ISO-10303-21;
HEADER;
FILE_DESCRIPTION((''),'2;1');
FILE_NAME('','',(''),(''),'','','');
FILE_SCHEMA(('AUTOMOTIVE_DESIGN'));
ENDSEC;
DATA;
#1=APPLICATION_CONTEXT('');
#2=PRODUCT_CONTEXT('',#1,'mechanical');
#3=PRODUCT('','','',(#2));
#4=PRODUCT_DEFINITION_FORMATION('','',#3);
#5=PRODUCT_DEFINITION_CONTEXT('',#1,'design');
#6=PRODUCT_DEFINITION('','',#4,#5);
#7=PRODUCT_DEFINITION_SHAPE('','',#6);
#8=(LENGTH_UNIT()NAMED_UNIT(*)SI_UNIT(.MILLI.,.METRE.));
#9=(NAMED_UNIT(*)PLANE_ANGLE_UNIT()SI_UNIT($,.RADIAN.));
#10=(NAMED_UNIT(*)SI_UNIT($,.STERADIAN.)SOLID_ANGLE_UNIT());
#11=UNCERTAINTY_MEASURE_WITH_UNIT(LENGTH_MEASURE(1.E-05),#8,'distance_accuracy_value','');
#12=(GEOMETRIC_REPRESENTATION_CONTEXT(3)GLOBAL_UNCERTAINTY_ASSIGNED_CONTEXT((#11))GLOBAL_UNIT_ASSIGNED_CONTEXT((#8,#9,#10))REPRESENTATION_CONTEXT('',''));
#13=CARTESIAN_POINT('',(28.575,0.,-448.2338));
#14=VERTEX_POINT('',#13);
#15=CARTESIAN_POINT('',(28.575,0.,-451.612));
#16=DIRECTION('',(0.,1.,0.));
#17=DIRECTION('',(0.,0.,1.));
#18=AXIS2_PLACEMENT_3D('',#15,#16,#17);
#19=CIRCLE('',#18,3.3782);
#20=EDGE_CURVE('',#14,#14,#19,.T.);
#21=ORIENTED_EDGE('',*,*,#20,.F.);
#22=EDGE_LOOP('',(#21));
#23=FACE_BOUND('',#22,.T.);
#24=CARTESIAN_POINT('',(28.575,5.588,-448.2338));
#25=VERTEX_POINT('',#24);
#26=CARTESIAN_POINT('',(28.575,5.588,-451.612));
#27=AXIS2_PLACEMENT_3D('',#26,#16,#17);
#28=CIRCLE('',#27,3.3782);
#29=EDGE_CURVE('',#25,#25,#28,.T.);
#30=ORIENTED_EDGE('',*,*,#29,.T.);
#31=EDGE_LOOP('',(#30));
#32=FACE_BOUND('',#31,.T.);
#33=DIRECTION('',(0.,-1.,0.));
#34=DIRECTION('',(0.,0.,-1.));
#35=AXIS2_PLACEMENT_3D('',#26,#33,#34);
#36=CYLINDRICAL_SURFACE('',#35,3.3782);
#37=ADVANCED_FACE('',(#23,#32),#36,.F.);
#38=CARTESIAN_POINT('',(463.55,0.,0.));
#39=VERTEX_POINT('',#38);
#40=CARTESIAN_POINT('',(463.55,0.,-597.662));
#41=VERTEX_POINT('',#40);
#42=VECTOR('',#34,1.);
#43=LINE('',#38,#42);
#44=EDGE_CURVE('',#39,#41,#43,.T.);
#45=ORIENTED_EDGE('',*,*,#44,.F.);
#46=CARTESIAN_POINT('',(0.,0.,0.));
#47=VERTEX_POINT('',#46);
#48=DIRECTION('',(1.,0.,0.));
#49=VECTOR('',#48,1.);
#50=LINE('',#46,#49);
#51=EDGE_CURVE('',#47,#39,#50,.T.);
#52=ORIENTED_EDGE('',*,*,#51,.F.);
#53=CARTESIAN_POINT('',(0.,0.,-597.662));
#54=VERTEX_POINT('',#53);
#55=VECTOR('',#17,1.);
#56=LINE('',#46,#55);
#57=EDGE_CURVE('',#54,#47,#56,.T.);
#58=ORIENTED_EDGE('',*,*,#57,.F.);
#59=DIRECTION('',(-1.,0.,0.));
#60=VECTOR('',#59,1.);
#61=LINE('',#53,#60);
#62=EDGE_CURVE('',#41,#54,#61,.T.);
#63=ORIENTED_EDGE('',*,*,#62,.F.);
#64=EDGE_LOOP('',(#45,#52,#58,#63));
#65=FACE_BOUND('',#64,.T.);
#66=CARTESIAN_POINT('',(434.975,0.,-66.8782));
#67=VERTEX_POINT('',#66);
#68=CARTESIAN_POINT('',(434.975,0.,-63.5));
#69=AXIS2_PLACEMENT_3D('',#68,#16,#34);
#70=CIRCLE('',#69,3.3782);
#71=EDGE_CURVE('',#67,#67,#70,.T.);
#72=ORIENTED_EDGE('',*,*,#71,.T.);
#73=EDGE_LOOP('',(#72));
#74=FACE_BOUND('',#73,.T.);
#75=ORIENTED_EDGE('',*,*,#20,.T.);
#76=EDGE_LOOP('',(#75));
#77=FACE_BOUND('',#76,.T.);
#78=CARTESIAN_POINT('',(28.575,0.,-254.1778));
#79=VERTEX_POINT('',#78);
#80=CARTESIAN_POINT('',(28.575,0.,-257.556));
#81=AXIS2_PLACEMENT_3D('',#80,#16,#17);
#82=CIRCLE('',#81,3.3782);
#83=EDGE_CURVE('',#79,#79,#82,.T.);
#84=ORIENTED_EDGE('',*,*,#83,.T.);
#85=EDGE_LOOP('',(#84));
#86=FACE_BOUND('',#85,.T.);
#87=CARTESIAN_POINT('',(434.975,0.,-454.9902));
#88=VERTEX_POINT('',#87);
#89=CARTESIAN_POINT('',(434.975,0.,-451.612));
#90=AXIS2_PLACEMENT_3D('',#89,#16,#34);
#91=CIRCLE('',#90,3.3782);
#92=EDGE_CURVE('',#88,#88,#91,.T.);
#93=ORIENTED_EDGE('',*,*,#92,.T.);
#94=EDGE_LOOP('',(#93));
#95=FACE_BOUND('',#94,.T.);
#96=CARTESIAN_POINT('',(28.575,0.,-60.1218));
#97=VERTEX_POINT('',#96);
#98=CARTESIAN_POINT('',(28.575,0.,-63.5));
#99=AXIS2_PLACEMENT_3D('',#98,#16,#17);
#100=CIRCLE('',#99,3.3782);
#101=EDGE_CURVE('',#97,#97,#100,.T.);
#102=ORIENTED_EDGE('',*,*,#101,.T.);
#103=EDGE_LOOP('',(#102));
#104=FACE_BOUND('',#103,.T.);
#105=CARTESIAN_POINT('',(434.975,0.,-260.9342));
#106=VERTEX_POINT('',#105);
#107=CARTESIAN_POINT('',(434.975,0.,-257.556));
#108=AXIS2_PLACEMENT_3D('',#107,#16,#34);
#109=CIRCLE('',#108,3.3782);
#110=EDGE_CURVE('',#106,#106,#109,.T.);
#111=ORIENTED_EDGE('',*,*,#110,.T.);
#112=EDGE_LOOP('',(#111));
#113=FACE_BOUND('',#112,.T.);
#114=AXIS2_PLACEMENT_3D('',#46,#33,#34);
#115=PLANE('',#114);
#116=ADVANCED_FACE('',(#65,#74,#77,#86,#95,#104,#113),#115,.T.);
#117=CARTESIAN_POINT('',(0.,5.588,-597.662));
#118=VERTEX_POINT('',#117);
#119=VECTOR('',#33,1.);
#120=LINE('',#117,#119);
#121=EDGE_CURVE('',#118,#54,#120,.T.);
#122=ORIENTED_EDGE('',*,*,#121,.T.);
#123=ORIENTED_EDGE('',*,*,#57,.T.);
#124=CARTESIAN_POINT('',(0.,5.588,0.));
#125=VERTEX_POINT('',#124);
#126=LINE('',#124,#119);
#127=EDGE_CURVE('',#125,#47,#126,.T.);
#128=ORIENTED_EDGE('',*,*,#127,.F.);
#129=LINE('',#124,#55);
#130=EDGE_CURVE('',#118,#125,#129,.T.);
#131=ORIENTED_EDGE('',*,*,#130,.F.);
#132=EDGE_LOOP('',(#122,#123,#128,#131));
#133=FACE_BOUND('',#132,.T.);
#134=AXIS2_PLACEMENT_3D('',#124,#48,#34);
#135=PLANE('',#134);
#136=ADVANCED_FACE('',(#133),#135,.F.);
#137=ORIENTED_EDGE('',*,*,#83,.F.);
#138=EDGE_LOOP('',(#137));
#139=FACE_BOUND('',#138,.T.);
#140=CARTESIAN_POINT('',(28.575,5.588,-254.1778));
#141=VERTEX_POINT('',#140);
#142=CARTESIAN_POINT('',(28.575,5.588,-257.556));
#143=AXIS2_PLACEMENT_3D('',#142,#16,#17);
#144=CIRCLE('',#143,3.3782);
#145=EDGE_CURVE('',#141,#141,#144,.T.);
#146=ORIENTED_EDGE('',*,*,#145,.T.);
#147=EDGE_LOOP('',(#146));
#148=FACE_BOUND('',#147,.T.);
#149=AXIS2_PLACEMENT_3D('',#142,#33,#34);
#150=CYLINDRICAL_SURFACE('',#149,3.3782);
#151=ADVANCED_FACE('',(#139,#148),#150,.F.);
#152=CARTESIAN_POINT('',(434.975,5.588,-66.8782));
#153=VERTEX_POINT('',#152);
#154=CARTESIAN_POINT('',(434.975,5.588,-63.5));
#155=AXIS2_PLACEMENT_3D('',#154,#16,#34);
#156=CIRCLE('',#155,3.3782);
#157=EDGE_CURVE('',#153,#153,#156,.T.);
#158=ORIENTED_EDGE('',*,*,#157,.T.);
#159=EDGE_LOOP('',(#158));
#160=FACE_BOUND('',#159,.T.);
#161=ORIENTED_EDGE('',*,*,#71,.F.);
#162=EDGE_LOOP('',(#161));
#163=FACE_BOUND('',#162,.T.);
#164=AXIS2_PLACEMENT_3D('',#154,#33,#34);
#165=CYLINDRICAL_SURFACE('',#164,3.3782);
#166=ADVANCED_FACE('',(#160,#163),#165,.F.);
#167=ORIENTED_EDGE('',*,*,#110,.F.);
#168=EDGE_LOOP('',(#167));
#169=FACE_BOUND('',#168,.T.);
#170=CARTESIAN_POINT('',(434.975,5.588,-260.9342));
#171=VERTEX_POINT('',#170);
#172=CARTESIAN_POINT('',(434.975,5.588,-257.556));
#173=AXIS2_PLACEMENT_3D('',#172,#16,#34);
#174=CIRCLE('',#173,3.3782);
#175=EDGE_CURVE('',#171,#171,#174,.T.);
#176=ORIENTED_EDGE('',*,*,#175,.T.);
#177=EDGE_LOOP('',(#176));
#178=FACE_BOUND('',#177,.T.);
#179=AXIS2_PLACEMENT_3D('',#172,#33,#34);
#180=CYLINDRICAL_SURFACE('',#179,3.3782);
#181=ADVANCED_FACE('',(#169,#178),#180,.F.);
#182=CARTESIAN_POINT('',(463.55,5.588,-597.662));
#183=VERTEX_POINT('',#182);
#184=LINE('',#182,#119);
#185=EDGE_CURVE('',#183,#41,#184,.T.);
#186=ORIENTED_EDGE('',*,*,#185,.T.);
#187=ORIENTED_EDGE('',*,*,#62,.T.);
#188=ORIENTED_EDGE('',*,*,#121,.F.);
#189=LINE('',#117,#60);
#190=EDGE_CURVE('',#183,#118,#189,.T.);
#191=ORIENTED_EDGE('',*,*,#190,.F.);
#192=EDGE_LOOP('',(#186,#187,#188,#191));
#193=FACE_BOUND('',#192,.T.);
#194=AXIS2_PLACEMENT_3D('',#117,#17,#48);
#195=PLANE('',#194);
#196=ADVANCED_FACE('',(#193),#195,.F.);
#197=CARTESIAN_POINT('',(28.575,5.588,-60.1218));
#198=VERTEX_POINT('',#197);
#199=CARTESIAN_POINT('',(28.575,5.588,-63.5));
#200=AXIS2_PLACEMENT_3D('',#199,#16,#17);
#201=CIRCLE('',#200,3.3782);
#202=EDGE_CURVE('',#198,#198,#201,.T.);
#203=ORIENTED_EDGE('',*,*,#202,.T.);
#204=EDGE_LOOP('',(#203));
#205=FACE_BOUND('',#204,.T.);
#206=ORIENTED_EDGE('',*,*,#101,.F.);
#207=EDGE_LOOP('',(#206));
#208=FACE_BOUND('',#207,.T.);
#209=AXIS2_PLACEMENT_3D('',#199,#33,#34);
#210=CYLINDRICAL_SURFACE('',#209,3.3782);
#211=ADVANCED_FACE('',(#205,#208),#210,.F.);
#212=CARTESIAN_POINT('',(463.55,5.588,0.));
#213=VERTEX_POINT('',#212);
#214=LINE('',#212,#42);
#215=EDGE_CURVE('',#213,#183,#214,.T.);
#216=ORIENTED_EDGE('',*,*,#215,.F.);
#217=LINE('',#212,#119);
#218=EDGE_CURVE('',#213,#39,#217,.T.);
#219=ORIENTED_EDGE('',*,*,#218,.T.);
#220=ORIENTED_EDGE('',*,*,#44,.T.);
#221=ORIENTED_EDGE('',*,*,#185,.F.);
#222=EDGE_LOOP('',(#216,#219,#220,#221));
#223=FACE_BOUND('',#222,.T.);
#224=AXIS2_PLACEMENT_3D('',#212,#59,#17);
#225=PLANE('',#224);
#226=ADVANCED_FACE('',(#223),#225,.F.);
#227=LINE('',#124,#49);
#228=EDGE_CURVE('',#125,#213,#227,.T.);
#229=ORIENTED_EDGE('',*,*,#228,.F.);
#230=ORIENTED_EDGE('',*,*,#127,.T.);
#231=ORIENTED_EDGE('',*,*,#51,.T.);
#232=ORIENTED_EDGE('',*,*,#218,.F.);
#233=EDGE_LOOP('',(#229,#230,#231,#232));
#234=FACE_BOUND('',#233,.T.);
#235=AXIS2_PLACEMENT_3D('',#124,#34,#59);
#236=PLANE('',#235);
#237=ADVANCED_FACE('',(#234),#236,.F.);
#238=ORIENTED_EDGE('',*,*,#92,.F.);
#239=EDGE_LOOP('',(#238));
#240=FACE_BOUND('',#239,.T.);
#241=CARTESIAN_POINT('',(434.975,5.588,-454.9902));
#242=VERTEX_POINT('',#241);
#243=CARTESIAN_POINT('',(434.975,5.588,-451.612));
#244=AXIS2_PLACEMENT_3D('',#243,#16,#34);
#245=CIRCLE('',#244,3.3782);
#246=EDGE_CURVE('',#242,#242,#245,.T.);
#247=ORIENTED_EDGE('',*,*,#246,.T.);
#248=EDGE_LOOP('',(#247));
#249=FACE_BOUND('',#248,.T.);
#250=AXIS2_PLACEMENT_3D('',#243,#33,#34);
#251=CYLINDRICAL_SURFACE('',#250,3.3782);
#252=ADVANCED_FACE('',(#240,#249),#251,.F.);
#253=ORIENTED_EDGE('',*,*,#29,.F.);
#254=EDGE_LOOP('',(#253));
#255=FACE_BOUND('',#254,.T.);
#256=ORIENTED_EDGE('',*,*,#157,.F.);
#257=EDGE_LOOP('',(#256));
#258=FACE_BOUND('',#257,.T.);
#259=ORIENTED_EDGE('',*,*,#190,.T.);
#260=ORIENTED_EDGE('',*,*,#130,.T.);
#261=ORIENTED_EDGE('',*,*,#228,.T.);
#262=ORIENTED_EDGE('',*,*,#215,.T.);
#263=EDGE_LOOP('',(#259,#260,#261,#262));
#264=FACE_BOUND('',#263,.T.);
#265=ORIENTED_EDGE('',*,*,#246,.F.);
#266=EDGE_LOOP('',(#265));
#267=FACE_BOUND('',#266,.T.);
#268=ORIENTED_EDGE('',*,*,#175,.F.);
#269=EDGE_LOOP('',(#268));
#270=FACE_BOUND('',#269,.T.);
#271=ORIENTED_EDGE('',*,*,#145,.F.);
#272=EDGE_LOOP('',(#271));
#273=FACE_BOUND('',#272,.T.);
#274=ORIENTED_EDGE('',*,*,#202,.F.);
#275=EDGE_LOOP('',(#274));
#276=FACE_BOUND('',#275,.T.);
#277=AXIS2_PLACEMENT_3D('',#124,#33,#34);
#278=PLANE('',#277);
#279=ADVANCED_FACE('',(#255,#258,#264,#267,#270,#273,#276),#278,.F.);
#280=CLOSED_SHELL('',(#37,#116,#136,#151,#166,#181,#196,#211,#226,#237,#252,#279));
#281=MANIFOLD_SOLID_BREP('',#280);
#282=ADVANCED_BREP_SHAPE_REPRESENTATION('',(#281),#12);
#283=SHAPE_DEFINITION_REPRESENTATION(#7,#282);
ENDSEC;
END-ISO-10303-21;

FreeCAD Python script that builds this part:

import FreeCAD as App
import Part
import Sketcher
from FreeCAD import Vector
Q = App.Units.Quantity


def add_polygon(sketch, points):
    """Adds a closed chain of lines whose ends are joined by coincident constraints."""
    first, n = sketch.GeometryCount, len(points)
    for a, b in zip(points, points[1:] + points[:1]):
        sketch.addGeometry(Part.LineSegment(App.Vector(*a, 0), App.Vector(*b, 0)), False)
    for i in range(n):
        sketch.addConstraint(Sketcher.Constraint("Coincident", first + i, 2, first + (i + 1) % n, 1))

doc = App.newDocument("Part")
body = doc.addObject("PartDesign::Body", "Body")

# Sketch on XZ plane
sketch1 = body.newObject("Sketcher::SketchObject", "Sketch")
sketch1.AttachmentSupport = (doc.getObject("XZ_Plane"), [""])
sketch1.MapMode = "FlatFace"
add_polygon(sketch1, [(0, -597.7), (0, 0), (463.6, 0), (463.6, -597.7)])  # lines 0-3
sketch1.addGeometry(Part.Circle(Vector(28.6, -63.5, 0), Vector(0, 0, 1), 3.4), False)  # 4
sketch1.addGeometry(Part.Circle(Vector(28.6, -257.6, 0), Vector(0, 0, 1), 3.4), False)  # 5
sketch1.addGeometry(Part.Circle(Vector(435, -63.5, 0), Vector(0, 0, 1), 3.4), False)  # 6
sketch1.addGeometry(Part.Circle(Vector(435, -257.6, 0), Vector(0, 0, 1), 3.4), False)  # 7
sketch1.addGeometry(Part.Circle(Vector(28.6, -451.6, 0), Vector(0, 0, 1), 3.4), False)  # 8
sketch1.addGeometry(Part.Circle(Vector(435, -451.6, 0), Vector(0, 0, 1), 3.4), False)  # 9
sketch1.addConstraint(Sketcher.Constraint("Vertical", 0))
sketch1.addConstraint(Sketcher.Constraint("Horizontal", 1))
sketch1.addConstraint(Sketcher.Constraint("Vertical", 2))
sketch1.addConstraint(Sketcher.Constraint("Horizontal", 3))
sketch1.addConstraint(Sketcher.Constraint("Coincident", 0, 2, -1, 1))
sketch1.addConstraint(Sketcher.Constraint("Equal", 4, 5))
sketch1.addConstraint(Sketcher.Constraint("Equal", 5, 6))
sketch1.addConstraint(Sketcher.Constraint("Equal", 6, 7))
sketch1.addConstraint(Sketcher.Constraint("Equal", 7, 8))
sketch1.addConstraint(Sketcher.Constraint("Equal", 8, 9))
sketch1.addConstraint(Sketcher.Constraint("Horizontal", 4, 3, 6, 3))
sketch1.addConstraint(Sketcher.Constraint("Horizontal", 5, 3, 7, 3))
sketch1.addConstraint(Sketcher.Constraint("Horizontal", 8, 3, 9, 3))
sketch1.addConstraint(Sketcher.Constraint("Vertical", 4, 3, 5, 3))
sketch1.addConstraint(Sketcher.Constraint("Vertical", 6, 3, 7, 3))
sketch1.addConstraint(Sketcher.Constraint("Vertical", 5, 3, 8, 3))
sketch1.addConstraint(Sketcher.Constraint("Vertical", 7, 3, 9, 3))
sketch1.addConstraint(Sketcher.Constraint("Diameter", 4, Q("0.266 in")))
sketch1.addConstraint(Sketcher.Constraint("DistanceX", 4, 3, 6, 3, Q("16 in")))
sketch1.addConstraint(Sketcher.Constraint("DistanceX", 1, 1, 1, 2, Q("18.25 in")))
sketch1.addConstraint(Sketcher.Constraint("DistanceY", 0, 1, 0, 2, Q("23.53 in")))
sketch1.addConstraint(Sketcher.Constraint("DistanceY", 4, 3, -1, 1, Q("2.5 in")))
sketch1.addConstraint(Sketcher.Constraint("DistanceY", 5, 3, -1, 1, Q("10.14 in")))
sketch1.addConstraint(Sketcher.Constraint("DistanceY", 8, 3, -1, 1, Q("17.78 in")))
sketch1.addConstraint(Sketcher.Constraint("DistanceX", -1, 1, 4, 3, Q("1.125 in")))
pad1 = body.newObject("PartDesign::Pad", "Pad")
pad1.Profile = sketch1
pad1.Length = Q("0.22 in")
pad1.Reversed = True

doc.recompute()
